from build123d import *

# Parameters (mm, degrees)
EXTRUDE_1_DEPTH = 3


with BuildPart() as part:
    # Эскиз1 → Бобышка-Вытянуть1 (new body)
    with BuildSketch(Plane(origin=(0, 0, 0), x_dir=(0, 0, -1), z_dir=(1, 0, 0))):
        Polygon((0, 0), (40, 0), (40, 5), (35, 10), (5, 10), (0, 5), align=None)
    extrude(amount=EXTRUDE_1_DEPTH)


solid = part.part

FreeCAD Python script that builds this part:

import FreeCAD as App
import Part
import Sketcher

V = App.Vector
Q = App.Units.Quantity

doc = App.newDocument("Part")
body = doc.addObject("PartDesign::Body", "Body")

# Sketch on YZ plane
sketch1 = doc.addObject("Sketcher::SketchObject", "Sketch")
body.addObject(sketch1)
sketch1.AttachmentSupport = (doc.YZ_Plane, [""])
sketch1.MapMode = "FlatFace"
sketch1.addGeometry([
    Part.LineSegment(V(0, 0, 0), V(0, -40, 0)),  # 0
    Part.LineSegment(V(0, -40, 0), V(5, -40, 0)),  # 1
    Part.LineSegment(V(5, -40, 0), V(10, -35, 0)),  # 2
    Part.LineSegment(V(10, -35, 0), V(10, -5, 0)),  # 3
    Part.LineSegment(V(10, -5, 0), V(5, 0, 0)),  # 4
    Part.LineSegment(V(5, 0, 0), V(0, 0, 0)),  # 5
], False)
sketch1.addConstraint([
    Sketcher.Constraint("Coincident", 0, 2, 1, 1),
    Sketcher.Constraint("Coincident", 1, 2, 2, 1),
    Sketcher.Constraint("Coincident", 2, 2, 3, 1),
    Sketcher.Constraint("Coincident", 3, 2, 4, 1),
    Sketcher.Constraint("Coincident", 4, 2, 5, 1),
    Sketcher.Constraint("Coincident", 5, 2, 0, 1),
    Sketcher.Constraint("Vertical", 0),
    Sketcher.Constraint("Horizontal", 1),
    Sketcher.Constraint("Vertical", 3),
    Sketcher.Constraint("Horizontal", 5),
    Sketcher.Constraint("Coincident", 5, 2, -1, 1),
    Sketcher.Constraint("Perpendicular", 2, 4),
    Sketcher.Constraint("Vertical", 1, 2, 4, 2),
    Sketcher.Constraint("Equal", 2, 4),
    Sketcher.Constraint("DistanceX", 1, 1, 1, 2, Q("5 mm")),
    Sketcher.Constraint("DistanceY", 0, 2, 0, 1, Q("40 mm")),
    Sketcher.Constraint("DistanceY", 3, 1, 3, 2, Q("30 mm")),
])
pad1 = doc.addObject("PartDesign::Pad", "Pad")
body.addObject(pad1)
pad1.Profile = sketch1
pad1.Length = 3

doc.recompute()
